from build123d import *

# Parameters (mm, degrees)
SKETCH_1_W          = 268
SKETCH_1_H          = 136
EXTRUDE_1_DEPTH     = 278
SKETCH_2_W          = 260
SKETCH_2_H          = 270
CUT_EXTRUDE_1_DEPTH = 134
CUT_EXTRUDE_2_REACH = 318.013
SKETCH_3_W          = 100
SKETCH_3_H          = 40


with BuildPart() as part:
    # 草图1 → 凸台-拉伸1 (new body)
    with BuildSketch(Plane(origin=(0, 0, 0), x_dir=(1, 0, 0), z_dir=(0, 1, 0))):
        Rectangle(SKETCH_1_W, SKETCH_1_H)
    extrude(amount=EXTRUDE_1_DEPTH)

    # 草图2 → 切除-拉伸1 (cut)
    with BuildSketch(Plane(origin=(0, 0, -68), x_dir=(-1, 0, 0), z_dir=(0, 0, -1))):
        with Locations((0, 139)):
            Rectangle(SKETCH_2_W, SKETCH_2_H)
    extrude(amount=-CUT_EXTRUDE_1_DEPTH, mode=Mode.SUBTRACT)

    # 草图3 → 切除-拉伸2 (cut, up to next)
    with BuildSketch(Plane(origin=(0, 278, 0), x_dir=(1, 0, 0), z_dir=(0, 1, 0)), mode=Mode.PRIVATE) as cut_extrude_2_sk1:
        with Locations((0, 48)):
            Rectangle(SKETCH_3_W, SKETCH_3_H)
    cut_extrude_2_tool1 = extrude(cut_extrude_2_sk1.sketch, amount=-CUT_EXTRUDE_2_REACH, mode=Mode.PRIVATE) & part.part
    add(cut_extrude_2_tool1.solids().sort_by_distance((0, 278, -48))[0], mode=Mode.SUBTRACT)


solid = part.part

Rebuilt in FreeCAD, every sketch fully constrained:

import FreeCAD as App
import Part
import Sketcher

V = App.Vector
Q = App.Units.Quantity


def add_polygon(sketch, points):
    """Adds a closed chain of lines whose ends are joined by coincident constraints."""
    first, n = sketch.GeometryCount, len(points)
    for a, b in zip(points, points[1:] + points[:1]):
        sketch.addGeometry(Part.LineSegment(App.Vector(*a, 0), App.Vector(*b, 0)), False)
    for i in range(n):
        sketch.addConstraint(Sketcher.Constraint("Coincident", first + i, 2, first + (i + 1) % n, 1))

doc = App.newDocument("Part")
body = doc.addObject("PartDesign::Body", "Body")

sketch1 = doc.addObject("Sketcher::SketchObject", "Sketch")
body.addObject(sketch1)
sketch1.AttachmentSupport = (doc.XZ_Plane, [""])
sketch1.MapMode = "FlatFace"
add_polygon(sketch1, [(-134, -68), (-134, 68), (134, 68), (134, -68)])
sketch1.addConstraint([
    Sketcher.Constraint("Vertical", 0),
    Sketcher.Constraint("Horizontal", 1),
    Sketcher.Constraint("Vertical", 2),
    Sketcher.Constraint("Horizontal", 3),
    Sketcher.Constraint("Symmetric", 0, 2, 2, 2, -1, 1),
    Sketcher.Constraint("DistanceX", 1, 1, 1, 2, Q("268 mm")),
    Sketcher.Constraint("DistanceY", 0, 1, 0, 2, Q("136 mm")),
])
pad1 = doc.addObject("PartDesign::Pad", "Pad")
body.addObject(pad1)
pad1.Profile = sketch1
pad1.Length = 278
pad1.Reversed = True

sketch2 = doc.addObject("Sketcher::SketchObject", "Sketch001")
body.addObject(sketch2)
sketch2.AttachmentSupport = (doc.XY_Plane, [""])
sketch2.MapMode = "FlatFace"
sketch2.AttachmentOffset = App.Placement(V(0, 0, -68), App.Rotation())
add_polygon(sketch2, [(130, 274), (130, 4), (-130, 4), (-130, 274)])
sketch2.addConstraint([
    Sketcher.Constraint("Vertical", 0),
    Sketcher.Constraint("Horizontal", 1),
    Sketcher.Constraint("Vertical", 2),
    Sketcher.Constraint("Horizontal", 3),
    Sketcher.Constraint("DistanceX", 1, 2, 1, 1, Q("260 mm")),
    Sketcher.Constraint("DistanceY", 0, 2, 0, 1, Q("270 mm")),
    Sketcher.Constraint("DistanceX", -1, 1, 0, 2, Q("130 mm")),
    Sketcher.Constraint("DistanceY", -1, 1, 0, 2, Q("4 mm")),
])
pocket1 = doc.addObject("PartDesign::Pocket", "Pocket")
body.addObject(pocket1)
pocket1.Profile = sketch2
pocket1.Length = 134
pocket1.Reversed = True

sketch3 = doc.addObject("Sketcher::SketchObject", "Sketch002")
body.addObject(sketch3)
sketch3.AttachmentSupport = (doc.XZ_Plane, [""])
sketch3.MapMode = "FlatFace"
sketch3.AttachmentOffset = App.Placement(V(0, 0, -278), App.Rotation())
add_polygon(sketch3, [(-50, -68), (-50, -28), (50, -28), (50, -68)])
sketch3.addConstraint([
    Sketcher.Constraint("Vertical", 0),
    Sketcher.Constraint("Horizontal", 1),
    Sketcher.Constraint("Vertical", 2),
    Sketcher.Constraint("Horizontal", 3),
    Sketcher.Constraint("DistanceX", 1, 1, 1, 2, Q("100 mm")),
    Sketcher.Constraint("DistanceY", 0, 1, 0, 2, Q("40 mm")),
    Sketcher.Constraint("DistanceX", 0, 2, -1, 1, Q("50 mm")),
    Sketcher.Constraint("DistanceY", 0, 2, -1, 1, Q("28 mm")),
])
pocket2 = doc.addObject("PartDesign::Pocket", "Pocket001")
body.addObject(pocket2)
pocket2.Profile = sketch3
pocket2.Type = "UpToFirst"
pocket2.Reversed = True

doc.recompute()
